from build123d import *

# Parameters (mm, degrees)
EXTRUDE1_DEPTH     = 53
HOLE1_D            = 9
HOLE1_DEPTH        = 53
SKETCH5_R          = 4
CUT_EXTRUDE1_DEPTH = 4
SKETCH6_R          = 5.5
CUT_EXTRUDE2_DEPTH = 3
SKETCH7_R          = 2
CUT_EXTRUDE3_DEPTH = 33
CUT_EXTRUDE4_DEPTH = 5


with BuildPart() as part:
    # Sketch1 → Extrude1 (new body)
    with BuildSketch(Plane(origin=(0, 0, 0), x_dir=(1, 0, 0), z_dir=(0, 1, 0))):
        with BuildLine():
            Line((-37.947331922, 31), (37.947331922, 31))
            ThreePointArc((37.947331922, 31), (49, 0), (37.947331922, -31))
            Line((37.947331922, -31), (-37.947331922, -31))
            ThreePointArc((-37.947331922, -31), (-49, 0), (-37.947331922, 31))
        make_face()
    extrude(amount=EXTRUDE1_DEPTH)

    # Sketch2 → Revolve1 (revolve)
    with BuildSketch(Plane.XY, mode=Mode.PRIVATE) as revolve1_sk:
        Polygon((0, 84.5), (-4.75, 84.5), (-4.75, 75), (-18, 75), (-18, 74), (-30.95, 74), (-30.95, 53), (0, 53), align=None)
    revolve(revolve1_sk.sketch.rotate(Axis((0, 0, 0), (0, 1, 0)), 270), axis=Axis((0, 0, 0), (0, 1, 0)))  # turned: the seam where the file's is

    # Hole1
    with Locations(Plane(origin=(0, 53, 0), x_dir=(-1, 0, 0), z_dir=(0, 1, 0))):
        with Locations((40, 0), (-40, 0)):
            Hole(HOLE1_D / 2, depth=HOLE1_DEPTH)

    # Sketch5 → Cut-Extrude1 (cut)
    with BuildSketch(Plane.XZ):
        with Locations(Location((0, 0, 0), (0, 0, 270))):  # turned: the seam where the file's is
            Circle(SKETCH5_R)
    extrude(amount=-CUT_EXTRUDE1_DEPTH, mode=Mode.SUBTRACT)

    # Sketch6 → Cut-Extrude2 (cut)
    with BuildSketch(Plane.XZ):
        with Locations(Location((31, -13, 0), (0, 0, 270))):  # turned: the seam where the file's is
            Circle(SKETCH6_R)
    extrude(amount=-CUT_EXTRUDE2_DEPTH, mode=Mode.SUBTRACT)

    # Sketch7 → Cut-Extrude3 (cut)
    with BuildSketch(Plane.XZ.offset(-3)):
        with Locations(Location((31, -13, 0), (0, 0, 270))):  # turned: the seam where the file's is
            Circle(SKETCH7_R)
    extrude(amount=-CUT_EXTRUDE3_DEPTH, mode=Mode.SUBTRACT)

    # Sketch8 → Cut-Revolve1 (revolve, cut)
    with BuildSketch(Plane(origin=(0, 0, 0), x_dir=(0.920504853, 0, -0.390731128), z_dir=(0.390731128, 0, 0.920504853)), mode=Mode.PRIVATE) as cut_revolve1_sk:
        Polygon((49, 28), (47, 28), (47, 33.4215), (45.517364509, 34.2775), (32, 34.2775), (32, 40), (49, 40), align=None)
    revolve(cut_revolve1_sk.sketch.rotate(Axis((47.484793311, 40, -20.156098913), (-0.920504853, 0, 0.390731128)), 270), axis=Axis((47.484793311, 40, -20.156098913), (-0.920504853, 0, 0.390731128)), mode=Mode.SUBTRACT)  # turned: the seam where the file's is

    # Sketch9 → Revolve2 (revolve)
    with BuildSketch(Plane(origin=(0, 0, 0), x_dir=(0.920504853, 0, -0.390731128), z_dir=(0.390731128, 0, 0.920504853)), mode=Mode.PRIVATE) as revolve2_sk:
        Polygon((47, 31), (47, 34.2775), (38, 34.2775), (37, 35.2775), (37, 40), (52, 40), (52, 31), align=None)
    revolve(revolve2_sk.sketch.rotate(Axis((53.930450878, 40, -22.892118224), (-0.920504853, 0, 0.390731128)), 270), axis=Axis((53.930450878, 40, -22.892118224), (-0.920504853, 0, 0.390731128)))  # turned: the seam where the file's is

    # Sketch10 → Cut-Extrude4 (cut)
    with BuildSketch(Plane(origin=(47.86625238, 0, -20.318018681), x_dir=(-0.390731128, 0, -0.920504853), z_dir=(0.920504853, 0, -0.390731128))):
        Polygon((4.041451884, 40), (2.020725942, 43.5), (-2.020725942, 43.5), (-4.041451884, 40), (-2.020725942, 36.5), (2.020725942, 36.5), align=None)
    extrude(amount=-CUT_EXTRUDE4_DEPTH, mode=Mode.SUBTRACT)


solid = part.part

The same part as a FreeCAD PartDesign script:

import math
import FreeCAD as App
import Part
import Sketcher
Q = App.Units.Quantity

doc = App.newDocument("Part")
params = doc.addObject("Spreadsheet::Sheet", "Params")
for row, (alias, value) in enumerate([
    ("sketch1_radius", "49 mm"),
    ("pad1_length", "53 mm"),
    ("sketch2_height", "1 mm"),
    ("sketch2_height2", "21 mm"),
    ("sketch2_height3", "9.5 mm"),
    ("sketch2_width", "4.75 mm"),
    ("sketch2_width2", "12.95 mm"),
    ("revolution_angle", "360 deg"),
    ("sketch3_diameter", "9 mm"),
    ("hole_diameter", "9 mm"),
    ("hole_depth", "53 mm"),
    ("sketch4_diameter", "8 mm"),
    ("pocket1_length", "4 mm"),
    ("sketch5_diameter", "11 mm"),
    ("pocket2_length", "3 mm"),
    ("sketch6_diameter", "4 mm"),
    ("pocket3_length", "33 mm"),
    ("sketch7_width", "2 mm"),
    ("sketch7_width2", "17 mm"),
    ("sketch7_height", "12 mm"),
    ("groove_angle", "360 deg"),
    ("sketch8_width", "5 mm"),
    ("sketch8_width2", "15 mm"),
    ("sketch8_width3", "9 mm"),
    ("revolution2_angle", "360 deg"),
    ("pocket4_length", "5 mm"),
], start=1):
    params.set(f"A{row}", alias)
    params.set(f"B{row}", "=" + value)
    params.setAlias(f"B{row}", alias)

body = doc.addObject("PartDesign::Body", "Body")

# Sketch on XZ plane
sketch1 = body.newObject("Sketcher::SketchObject", "Sketch")
sketch1.AttachmentSupport = (doc.getObject("XZ_Plane"), [""])
sketch1.MapMode = "FlatFace"
sketch1.addGeometry(Part.LineSegment(App.Vector(38, -31, 0), App.Vector(-38, -31, 0)), False)
sketch1.addGeometry(Part.ArcOfCircle(Part.Circle(App.Vector(0, 0, 0), App.Vector(0, 0, 1), 49), math.radians(141), math.radians(219)), False)
sketch1.addGeometry(Part.LineSegment(App.Vector(-38, 31, 0), App.Vector(38, 31, 0)), False)
sketch1.addGeometry(Part.ArcOfCircle(Part.Circle(App.Vector(0, 0, 0), App.Vector(0, 0, 1), 49), math.radians(-39), math.radians(39)), False)
sketch1.addConstraint(Sketcher.Constraint("Coincident", 0, 2, 1, 2))
sketch1.addConstraint(Sketcher.Constraint("Coincident", 1, 1, 2, 1))
sketch1.addConstraint(Sketcher.Constraint("Coincident", 2, 2, 3, 2))
sketch1.addConstraint(Sketcher.Constraint("Coincident", 3, 1, 0, 1))
sketch1.addConstraint(Sketcher.Constraint("Horizontal", 0))
sketch1.addConstraint(Sketcher.Constraint("Horizontal", 2))
sketch1.addConstraint(Sketcher.Constraint("Coincident", 1, 3, -1, 1))
sketch1.addConstraint(Sketcher.Constraint("Coincident", 3, 3, -1, 1))
sketch1.addConstraint(Sketcher.Constraint("Equal", 1, 3))
sketch1.addConstraint(Sketcher.Constraint("Vertical", 0, 2, 1, 1))
sketch1.addConstraint(Sketcher.Constraint("Radius", 1, Q("49 mm")))
sketch1.addConstraint(Sketcher.Constraint("DistanceY", 0, 2, -1, 1, Q("31 mm")))
sketch1.setExpression("Constraints[10]", "Params.sketch1_radius")
pad1 = body.newObject("PartDesign::Pad", "Pad")
pad1.Profile = sketch1
pad1.setExpression("Length", "Params.pad1_length")
pad1.Reversed = True

# Sketch on XY plane
sketch2 = body.newObject("Sketcher::SketchObject", "Sketch001")
sketch2.AttachmentSupport = (doc.getObject("XY_Plane"), [""])
sketch2.MapMode = "FlatFace"
sketch2.addGeometry(Part.LineSegment(App.Vector(0, 84.5, 0), App.Vector(-4.8, 84.5, 0)), False)
sketch2.addGeometry(Part.LineSegment(App.Vector(-4.8, 84.5, 0), App.Vector(-4.8, 75, 0)), False)
sketch2.addGeometry(Part.LineSegment(App.Vector(-4.8, 75, 0), App.Vector(-18, 75, 0)), False)
sketch2.addGeometry(Part.LineSegment(App.Vector(-18, 75, 0), App.Vector(-18, 74, 0)), False)
sketch2.addGeometry(Part.LineSegment(App.Vector(-18, 74, 0), App.Vector(-30.9, 74, 0)), False)
sketch2.addGeometry(Part.LineSegment(App.Vector(-30.9, 74, 0), App.Vector(-30.9, 53, 0)), False)
sketch2.addGeometry(Part.LineSegment(App.Vector(-30.9, 53, 0), App.Vector(0, 53, 0)), False)
sketch2.addGeometry(Part.LineSegment(App.Vector(0, 53, 0), App.Vector(0, 84.5, 0)), False)
sketch2.addConstraint(Sketcher.Constraint("Coincident", 0, 2, 1, 1))
sketch2.addConstraint(Sketcher.Constraint("Coincident", 1, 2, 2, 1))
sketch2.addConstraint(Sketcher.Constraint("Coincident", 2, 2, 3, 1))
sketch2.addConstraint(Sketcher.Constraint("Coincident", 3, 2, 4, 1))
sketch2.addConstraint(Sketcher.Constraint("Coincident", 4, 2, 5, 1))
sketch2.addConstraint(Sketcher.Constraint("Coincident", 5, 2, 6, 1))
sketch2.addConstraint(Sketcher.Constraint("Coincident", 6, 2, 7, 1))
sketch2.addConstraint(Sketcher.Constraint("Coincident", 7, 2, 0, 1))
sketch2.addConstraint(Sketcher.Constraint("Horizontal", 0))
sketch2.addConstraint(Sketcher.Constraint("Vertical", 1))
sketch2.addConstraint(Sketcher.Constraint("Horizontal", 2))
sketch2.addConstraint(Sketcher.Constraint("Vertical", 3))
sketch2.addConstraint(Sketcher.Constraint("Horizontal", 4))
sketch2.addConstraint(Sketcher.Constraint("Vertical", 5))
sketch2.addConstraint(Sketcher.Constraint("Horizontal", 6))
sketch2.addConstraint(Sketcher.Constraint("Vertical", 7))
sketch2.addConstraint(Sketcher.Constraint("PointOnObject", 6, 2, -2))
sketch2.addConstraint(Sketcher.Constraint("DistanceY", 3, 2, 3, 1, Q("1 mm")))
sketch2.addConstraint(Sketcher.Constraint("DistanceY", 5, 2, 5, 1, Q("21 mm")))
sketch2.addConstraint(Sketcher.Constraint("DistanceY", 1, 2, 1, 1, Q("9.5 mm")))
sketch2.addConstraint(Sketcher.Constraint("DistanceY", -1, 1, 1, 2, Q("75 mm")))
sketch2.addConstraint(Sketcher.Constraint("DistanceX", 2, 2, -1, 1, Q("18 mm")))
sketch2.addConstraint(Sketcher.Constraint("DistanceX", 0, 2, 0, 1, Q("4.75 mm")))
sketch2.addConstraint(Sketcher.Constraint("DistanceX", 4, 2, 4, 1, Q("12.95 mm")))
sketch2.setExpression("Constraints[17]", "Params.sketch2_height")
sketch2.setExpression("Constraints[18]", "Params.sketch2_height2")
sketch2.setExpression("Constraints[19]", "Params.sketch2_height3")
sketch2.setExpression("Constraints[22]", "Params.sketch2_width")
sketch2.setExpression("Constraints[23]", "Params.sketch2_width2")
revolution = body.newObject("PartDesign::Revolution", "Revolution")
revolution.Profile = sketch2
revolution.ReferenceAxis = (sketch2, ["V_Axis"])
revolution.setExpression("Angle", "Params.revolution_angle")

# Sketch on XZ plane
sketch3 = body.newObject("Sketcher::SketchObject", "Sketch002")
sketch3.AttachmentSupport = (doc.getObject("XZ_Plane"), [""])
sketch3.MapMode = "FlatFace"
sketch3.AttachmentOffset = App.Placement(App.Vector(0, 0, -53), App.Rotation())
sketch3.addGeometry(Part.Circle(App.Vector(-40, 0, 0), App.Vector(0, 0, 1), 4.5), False)
sketch3.addGeometry(Part.Circle(App.Vector(40, 0, 0), App.Vector(0, 0, 1), 4.5), False)
sketch3.addConstraint(Sketcher.Constraint("Equal", 0, 1))
sketch3.addConstraint(Sketcher.Constraint("Symmetric", 0, 3, 1, 3, -1, 1))
sketch3.addConstraint(Sketcher.Constraint("PointOnObject", 0, 3, -1))
sketch3.addConstraint(Sketcher.Constraint("Diameter", 0, Q("9 mm")))
sketch3.addConstraint(Sketcher.Constraint("DistanceX", 0, 3, -1, 1, Q("40 mm")))
sketch3.setExpression("Constraints[3]", "Params.sketch3_diameter")
doc.recompute()
hole = body.newObject("PartDesign::Hole", "Hole")
hole.Profile = sketch3
hole.ThreadType = "None"
hole.setExpression("Diameter", "Params.hole_diameter")
hole.DepthType = "Dimension"
hole.setExpression("Depth", "Params.hole_depth")
hole.DrillPoint = "Flat"
hole.Reversed = True

# Sketch on XZ plane
sketch4 = body.newObject("Sketcher::SketchObject", "Sketch003")
sketch4.AttachmentSupport = (doc.getObject("XZ_Plane"), [""])
sketch4.MapMode = "FlatFace"
sketch4.addGeometry(Part.Circle(App.Vector(0, 0, 0), App.Vector(0, 0, 1), 4), False)
sketch4.addConstraint(Sketcher.Constraint("Coincident", 0, 3, -1, 1))
sketch4.addConstraint(Sketcher.Constraint("Diameter", 0, Q("8 mm")))
sketch4.setExpression("Constraints[1]", "Params.sketch4_diameter")
pocket1 = body.newObject("PartDesign::Pocket", "Pocket")
pocket1.Profile = sketch4
pocket1.setExpression("Length", "Params.pocket1_length")

# Sketch on XZ plane
sketch5 = body.newObject("Sketcher::SketchObject", "Sketch004")
sketch5.AttachmentSupport = (doc.getObject("XZ_Plane"), [""])
sketch5.MapMode = "FlatFace"
sketch5.addGeometry(Part.Circle(App.Vector(31, -13, 0), App.Vector(0, 0, 1), 6), False)
sketch5.addConstraint(Sketcher.Constraint("Diameter", 0, Q("11 mm")))
sketch5.addConstraint(Sketcher.Constraint("DistanceX", -1, 1, 0, 3, Q("31 mm")))
sketch5.addConstraint(Sketcher.Constraint("DistanceY", 0, 3, -1, 1, Q("13 mm")))
sketch5.setExpression("Constraints[0]", "Params.sketch5_diameter")
pocket2 = body.newObject("PartDesign::Pocket", "Pocket001")
pocket2.Profile = sketch5
pocket2.setExpression("Length", "Params.pocket2_length")

# Sketch on XZ plane
sketch6 = body.newObject("Sketcher::SketchObject", "Sketch005")
sketch6.AttachmentSupport = (doc.getObject("XZ_Plane"), [""])
sketch6.MapMode = "FlatFace"
sketch6.AttachmentOffset = App.Placement(App.Vector(0, 0, -3), App.Rotation())
sketch6.addGeometry(Part.Circle(App.Vector(31, -13, 0), App.Vector(0, 0, 1), 2), False)
sketch6.addConstraint(Sketcher.Constraint("Diameter", 0, Q("4 mm")))
sketch6.addConstraint(Sketcher.Constraint("DistanceX", -1, 1, 0, 3, Q("31 mm")))
sketch6.addConstraint(Sketcher.Constraint("DistanceY", 0, 3, -1, 1, Q("13 mm")))
sketch6.setExpression("Constraints[0]", "Params.sketch6_diameter")
pocket3 = body.newObject("PartDesign::Pocket", "Pocket002")
pocket3.Profile = sketch6
pocket3.setExpression("Length", "Params.pocket3_length")

# Sketch on an angled plane
sketch7 = body.newObject("Sketcher::SketchObject", "Sketch006")
sketch7.Placement = App.Placement(App.Vector(0, 0, 0), App.Rotation(App.Vector(0.920504854, 0, -0.390731128), App.Vector(0, 1.000000001, 0), App.Vector(0.390731128, 0, 0.920504854), "ZXY"))
sketch7.addGeometry(Part.LineSegment(App.Vector(47, 28, 0), App.Vector(49, 28, 0)), False)
sketch7.addGeometry(Part.LineSegment(App.Vector(49, 28, 0), App.Vector(49, 40, 0)), False)
sketch7.addGeometry(Part.LineSegment(App.Vector(49, 40, 0), App.Vector(32, 40, 0)), False)
sketch7.addGeometry(Part.LineSegment(App.Vector(32, 40, 0), App.Vector(32, 34.3, 0)), False)
sketch7.addGeometry(Part.LineSegment(App.Vector(32, 34.3, 0), App.Vector(45.5, 34.3, 0)), False)
sketch7.addGeometry(Part.LineSegment(App.Vector(45.5, 34.3, 0), App.Vector(47, 33.4, 0)), False)
sketch7.addGeometry(Part.LineSegment(App.Vector(47, 33.4, 0), App.Vector(47, 28, 0)), False)
sketch7.addGeometry(Part.LineSegment(App.Vector(49, 40, 0), App.Vector(32, 40, 0)), True)  # axis
sketch7.addConstraint(Sketcher.Constraint("Coincident", 0, 2, 1, 1))
sketch7.addConstraint(Sketcher.Constraint("Coincident", 1, 2, 2, 1))
sketch7.addConstraint(Sketcher.Constraint("Coincident", 2, 2, 3, 1))
sketch7.addConstraint(Sketcher.Constraint("Coincident", 3, 2, 4, 1))
sketch7.addConstraint(Sketcher.Constraint("Coincident", 4, 2, 5, 1))
sketch7.addConstraint(Sketcher.Constraint("Coincident", 5, 2, 6, 1))
sketch7.addConstraint(Sketcher.Constraint("Coincident", 6, 2, 0, 1))
sketch7.addConstraint(Sketcher.Constraint("Horizontal", 0))
sketch7.addConstraint(Sketcher.Constraint("Vertical", 1))
sketch7.addConstraint(Sketcher.Constraint("Horizontal", 2))
sketch7.addConstraint(Sketcher.Constraint("Vertical", 3))
sketch7.addConstraint(Sketcher.Constraint("Horizontal", 4))
sketch7.addConstraint(Sketcher.Constraint("Vertical", 6))
sketch7.addConstraint(Sketcher.Constraint("Horizontal", 7))
sketch7.addConstraint(Sketcher.Constraint("Coincident", 7, 1, 1, 2))
sketch7.addConstraint(Sketcher.Constraint("Vertical", 3, 2, 7, 2))
sketch7.addConstraint(Sketcher.Constraint("DistanceX", 0, 1, 0, 2, Q("2 mm")))
sketch7.addConstraint(Sketcher.Constraint("DistanceX", 2, 2, 2, 1, Q("17 mm")))
sketch7.addConstraint(Sketcher.Constraint("DistanceY", 1, 1, 1, 2, Q("12 mm")))
sketch7.addConstraint(Sketcher.Constraint("Angle", 5, Q("-30 deg")))
sketch7.addConstraint(Sketcher.Constraint("DistanceX", -1, 1, 0, 2, Q("49 mm")))
sketch7.addConstraint(Sketcher.Constraint("DistanceY", -1, 1, 0, 2, Q("28 mm")))
sketch7.addConstraint(Sketcher.Constraint("Distance", 5, Q("1.712 mm")))
sketch7.addConstraint(Sketcher.Constraint("DistanceY", 3, 2, 3, 1, Q("5.7225 mm")))
sketch7.setExpression("Constraints[16]", "Params.sketch7_width")
sketch7.setExpression("Constraints[17]", "Params.sketch7_width2")
sketch7.setExpression("Constraints[18]", "Params.sketch7_height")
groove = body.newObject("PartDesign::Groove", "Groove")
groove.Profile = sketch7
groove.ReferenceAxis = (sketch7, ["Axis0"])
groove.setExpression("Angle", "Params.groove_angle")

# Sketch on an angled plane
sketch8 = body.newObject("Sketcher::SketchObject", "Sketch007")
sketch8.Placement = App.Placement(App.Vector(0, 0, 0), App.Rotation(App.Vector(0.920504854, 0, -0.390731128), App.Vector(0, 1.000000001, 0), App.Vector(0.390731128, 0, 0.920504854), "ZXY"))
sketch8.addGeometry(Part.LineSegment(App.Vector(47, 34.3, 0), App.Vector(47, 31, 0)), False)
sketch8.addGeometry(Part.LineSegment(App.Vector(47, 31, 0), App.Vector(52, 31, 0)), False)
sketch8.addGeometry(Part.LineSegment(App.Vector(52, 31, 0), App.Vector(52, 40, 0)), False)
sketch8.addGeometry(Part.LineSegment(App.Vector(52, 40, 0), App.Vector(37, 40, 0)), False)
sketch8.addGeometry(Part.LineSegment(App.Vector(37, 40, 0), App.Vector(37, 35.3, 0)), False)
sketch8.addGeometry(Part.LineSegment(App.Vector(37, 35.3, 0), App.Vector(38, 34.3, 0)), False)
sketch8.addGeometry(Part.LineSegment(App.Vector(38, 34.3, 0), App.Vector(47, 34.3, 0)), False)
sketch8.addGeometry(Part.LineSegment(App.Vector(52, 40, 0), App.Vector(37, 40, 0)), True)  # axis
sketch8.addConstraint(Sketcher.Constraint("Coincident", 0, 2, 1, 1))
sketch8.addConstraint(Sketcher.Constraint("Coincident", 1, 2, 2, 1))
sketch8.addConstraint(Sketcher.Constraint("Coincident", 2, 2, 3, 1))
sketch8.addConstraint(Sketcher.Constraint("Coincident", 3, 2, 4, 1))
sketch8.addConstraint(Sketcher.Constraint("Coincident", 4, 2, 5, 1))
sketch8.addConstraint(Sketcher.Constraint("Coincident", 5, 2, 6, 1))
sketch8.addConstraint(Sketcher.Constraint("Coincident", 6, 2, 0, 1))
sketch8.addConstraint(Sketcher.Constraint("Vertical", 0))
sketch8.addConstraint(Sketcher.Constraint("Horizontal", 1))
sketch8.addConstraint(Sketcher.Constraint("Vertical", 2))
sketch8.addConstraint(Sketcher.Constraint("Horizontal", 3))
sketch8.addConstraint(Sketcher.Constraint("Vertical", 4))
sketch8.addConstraint(Sketcher.Constraint("Horizontal", 6))
sketch8.addConstraint(Sketcher.Constraint("Horizontal", 7))
sketch8.addConstraint(Sketcher.Constraint("Coincident", 7, 1, 2, 2))
sketch8.addConstraint(Sketcher.Constraint("Vertical", 4, 2, 7, 2))
sketch8.addConstraint(Sketcher.Constraint("Equal", 6, 2))
sketch8.addConstraint(Sketcher.Constraint("DistanceX", 1, 1, 1, 2, Q("5 mm")))
sketch8.addConstraint(Sketcher.Constraint("DistanceX", 3, 2, 3, 1, Q("15 mm")))
sketch8.addConstraint(Sketcher.Constraint("DistanceX", 6, 1, 6, 2, Q("9 mm")))
sketch8.addConstraint(Sketcher.Constraint("Angle", 5, Q("-45 deg")))
sketch8.addConstraint(Sketcher.Constraint("DistanceX", -1, 1, 0, 2, Q("47 mm")))
sketch8.addConstraint(Sketcher.Constraint("DistanceY", -1, 1, 0, 2, Q("31 mm")))
sketch8.addConstraint(Sketcher.Constraint("DistanceY", 0, 2, 0, 1, Q("3.2775 mm")))
sketch8.setExpression("Constraints[17]", "Params.sketch8_width")
sketch8.setExpression("Constraints[18]", "Params.sketch8_width2")
sketch8.setExpression("Constraints[19]", "Params.sketch8_width3")
revolution2 = body.newObject("PartDesign::Revolution", "Revolution001")
revolution2.Profile = sketch8
revolution2.ReferenceAxis = (sketch8, ["Axis0"])
revolution2.setExpression("Angle", "Params.revolution2_angle")

# Sketch on an angled plane
sketch9 = body.newObject("Sketcher::SketchObject", "Sketch008")
sketch9.Placement = App.Placement(App.Vector(47.866252, 0, -20.318019), App.Rotation(App.Vector(-0.390731128, 0, -0.920504854), App.Vector(0, 1.000000001, 0), App.Vector(0.920504854, 0, -0.390731128), "ZXY"))
sketch9.addGeometry(Part.LineSegment(App.Vector(4, 40, 0), App.Vector(2, 43.5, 0)), False)
sketch9.addGeometry(Part.LineSegment(App.Vector(2, 43.5, 0), App.Vector(-2, 43.5, 0)), False)
sketch9.addGeometry(Part.LineSegment(App.Vector(-2, 43.5, 0), App.Vector(-4, 40, 0)), False)
sketch9.addGeometry(Part.LineSegment(App.Vector(-4, 40, 0), App.Vector(-2, 36.5, 0)), False)
sketch9.addGeometry(Part.LineSegment(App.Vector(-2, 36.5, 0), App.Vector(2, 36.5, 0)), False)
sketch9.addGeometry(Part.LineSegment(App.Vector(2, 36.5, 0), App.Vector(4, 40, 0)), False)
sketch9.addConstraint(Sketcher.Constraint("Coincident", 0, 2, 1, 1))
sketch9.addConstraint(Sketcher.Constraint("Coincident", 1, 2, 2, 1))
sketch9.addConstraint(Sketcher.Constraint("Coincident", 2, 2, 3, 1))
sketch9.addConstraint(Sketcher.Constraint("Coincident", 3, 2, 4, 1))
sketch9.addConstraint(Sketcher.Constraint("Coincident", 4, 2, 5, 1))
sketch9.addConstraint(Sketcher.Constraint("Coincident", 5, 2, 0, 1))
sketch9.addConstraint(Sketcher.Constraint("Horizontal", 1))
sketch9.addConstraint(Sketcher.Constraint("Horizontal", 4))
sketch9.addConstraint(Sketcher.Constraint("Symmetric", 2, 2, 5, 2, -2))
sketch9.addConstraint(Sketcher.Constraint("Parallel", 0, 3))
sketch9.addConstraint(Sketcher.Constraint("Parallel", 2, 5))
sketch9.addConstraint(Sketcher.Constraint("Vertical", 1, 2, 3, 2))
sketch9.addConstraint(Sketcher.Constraint("Vertical", 0, 2, 4, 2))
sketch9.addConstraint(Sketcher.Constraint("Angle", 0, Q("120 deg")))
sketch9.addConstraint(Sketcher.Constraint("DistanceY", -1, 1, 2, 2, Q("40 mm")))
sketch9.addConstraint(Sketcher.Constraint("DistanceY", 3, 2, 1, 2, Q("7 mm")))
sketch9.addConstraint(Sketcher.Constraint("DistanceX", 1, 2, 1, 1, Q("4.041452 mm")))
pocket4 = body.newObject("PartDesign::Pocket", "Pocket003")
pocket4.Profile = sketch9
pocket4.setExpression("Length", "Params.pocket4_length")

doc.recompute()
